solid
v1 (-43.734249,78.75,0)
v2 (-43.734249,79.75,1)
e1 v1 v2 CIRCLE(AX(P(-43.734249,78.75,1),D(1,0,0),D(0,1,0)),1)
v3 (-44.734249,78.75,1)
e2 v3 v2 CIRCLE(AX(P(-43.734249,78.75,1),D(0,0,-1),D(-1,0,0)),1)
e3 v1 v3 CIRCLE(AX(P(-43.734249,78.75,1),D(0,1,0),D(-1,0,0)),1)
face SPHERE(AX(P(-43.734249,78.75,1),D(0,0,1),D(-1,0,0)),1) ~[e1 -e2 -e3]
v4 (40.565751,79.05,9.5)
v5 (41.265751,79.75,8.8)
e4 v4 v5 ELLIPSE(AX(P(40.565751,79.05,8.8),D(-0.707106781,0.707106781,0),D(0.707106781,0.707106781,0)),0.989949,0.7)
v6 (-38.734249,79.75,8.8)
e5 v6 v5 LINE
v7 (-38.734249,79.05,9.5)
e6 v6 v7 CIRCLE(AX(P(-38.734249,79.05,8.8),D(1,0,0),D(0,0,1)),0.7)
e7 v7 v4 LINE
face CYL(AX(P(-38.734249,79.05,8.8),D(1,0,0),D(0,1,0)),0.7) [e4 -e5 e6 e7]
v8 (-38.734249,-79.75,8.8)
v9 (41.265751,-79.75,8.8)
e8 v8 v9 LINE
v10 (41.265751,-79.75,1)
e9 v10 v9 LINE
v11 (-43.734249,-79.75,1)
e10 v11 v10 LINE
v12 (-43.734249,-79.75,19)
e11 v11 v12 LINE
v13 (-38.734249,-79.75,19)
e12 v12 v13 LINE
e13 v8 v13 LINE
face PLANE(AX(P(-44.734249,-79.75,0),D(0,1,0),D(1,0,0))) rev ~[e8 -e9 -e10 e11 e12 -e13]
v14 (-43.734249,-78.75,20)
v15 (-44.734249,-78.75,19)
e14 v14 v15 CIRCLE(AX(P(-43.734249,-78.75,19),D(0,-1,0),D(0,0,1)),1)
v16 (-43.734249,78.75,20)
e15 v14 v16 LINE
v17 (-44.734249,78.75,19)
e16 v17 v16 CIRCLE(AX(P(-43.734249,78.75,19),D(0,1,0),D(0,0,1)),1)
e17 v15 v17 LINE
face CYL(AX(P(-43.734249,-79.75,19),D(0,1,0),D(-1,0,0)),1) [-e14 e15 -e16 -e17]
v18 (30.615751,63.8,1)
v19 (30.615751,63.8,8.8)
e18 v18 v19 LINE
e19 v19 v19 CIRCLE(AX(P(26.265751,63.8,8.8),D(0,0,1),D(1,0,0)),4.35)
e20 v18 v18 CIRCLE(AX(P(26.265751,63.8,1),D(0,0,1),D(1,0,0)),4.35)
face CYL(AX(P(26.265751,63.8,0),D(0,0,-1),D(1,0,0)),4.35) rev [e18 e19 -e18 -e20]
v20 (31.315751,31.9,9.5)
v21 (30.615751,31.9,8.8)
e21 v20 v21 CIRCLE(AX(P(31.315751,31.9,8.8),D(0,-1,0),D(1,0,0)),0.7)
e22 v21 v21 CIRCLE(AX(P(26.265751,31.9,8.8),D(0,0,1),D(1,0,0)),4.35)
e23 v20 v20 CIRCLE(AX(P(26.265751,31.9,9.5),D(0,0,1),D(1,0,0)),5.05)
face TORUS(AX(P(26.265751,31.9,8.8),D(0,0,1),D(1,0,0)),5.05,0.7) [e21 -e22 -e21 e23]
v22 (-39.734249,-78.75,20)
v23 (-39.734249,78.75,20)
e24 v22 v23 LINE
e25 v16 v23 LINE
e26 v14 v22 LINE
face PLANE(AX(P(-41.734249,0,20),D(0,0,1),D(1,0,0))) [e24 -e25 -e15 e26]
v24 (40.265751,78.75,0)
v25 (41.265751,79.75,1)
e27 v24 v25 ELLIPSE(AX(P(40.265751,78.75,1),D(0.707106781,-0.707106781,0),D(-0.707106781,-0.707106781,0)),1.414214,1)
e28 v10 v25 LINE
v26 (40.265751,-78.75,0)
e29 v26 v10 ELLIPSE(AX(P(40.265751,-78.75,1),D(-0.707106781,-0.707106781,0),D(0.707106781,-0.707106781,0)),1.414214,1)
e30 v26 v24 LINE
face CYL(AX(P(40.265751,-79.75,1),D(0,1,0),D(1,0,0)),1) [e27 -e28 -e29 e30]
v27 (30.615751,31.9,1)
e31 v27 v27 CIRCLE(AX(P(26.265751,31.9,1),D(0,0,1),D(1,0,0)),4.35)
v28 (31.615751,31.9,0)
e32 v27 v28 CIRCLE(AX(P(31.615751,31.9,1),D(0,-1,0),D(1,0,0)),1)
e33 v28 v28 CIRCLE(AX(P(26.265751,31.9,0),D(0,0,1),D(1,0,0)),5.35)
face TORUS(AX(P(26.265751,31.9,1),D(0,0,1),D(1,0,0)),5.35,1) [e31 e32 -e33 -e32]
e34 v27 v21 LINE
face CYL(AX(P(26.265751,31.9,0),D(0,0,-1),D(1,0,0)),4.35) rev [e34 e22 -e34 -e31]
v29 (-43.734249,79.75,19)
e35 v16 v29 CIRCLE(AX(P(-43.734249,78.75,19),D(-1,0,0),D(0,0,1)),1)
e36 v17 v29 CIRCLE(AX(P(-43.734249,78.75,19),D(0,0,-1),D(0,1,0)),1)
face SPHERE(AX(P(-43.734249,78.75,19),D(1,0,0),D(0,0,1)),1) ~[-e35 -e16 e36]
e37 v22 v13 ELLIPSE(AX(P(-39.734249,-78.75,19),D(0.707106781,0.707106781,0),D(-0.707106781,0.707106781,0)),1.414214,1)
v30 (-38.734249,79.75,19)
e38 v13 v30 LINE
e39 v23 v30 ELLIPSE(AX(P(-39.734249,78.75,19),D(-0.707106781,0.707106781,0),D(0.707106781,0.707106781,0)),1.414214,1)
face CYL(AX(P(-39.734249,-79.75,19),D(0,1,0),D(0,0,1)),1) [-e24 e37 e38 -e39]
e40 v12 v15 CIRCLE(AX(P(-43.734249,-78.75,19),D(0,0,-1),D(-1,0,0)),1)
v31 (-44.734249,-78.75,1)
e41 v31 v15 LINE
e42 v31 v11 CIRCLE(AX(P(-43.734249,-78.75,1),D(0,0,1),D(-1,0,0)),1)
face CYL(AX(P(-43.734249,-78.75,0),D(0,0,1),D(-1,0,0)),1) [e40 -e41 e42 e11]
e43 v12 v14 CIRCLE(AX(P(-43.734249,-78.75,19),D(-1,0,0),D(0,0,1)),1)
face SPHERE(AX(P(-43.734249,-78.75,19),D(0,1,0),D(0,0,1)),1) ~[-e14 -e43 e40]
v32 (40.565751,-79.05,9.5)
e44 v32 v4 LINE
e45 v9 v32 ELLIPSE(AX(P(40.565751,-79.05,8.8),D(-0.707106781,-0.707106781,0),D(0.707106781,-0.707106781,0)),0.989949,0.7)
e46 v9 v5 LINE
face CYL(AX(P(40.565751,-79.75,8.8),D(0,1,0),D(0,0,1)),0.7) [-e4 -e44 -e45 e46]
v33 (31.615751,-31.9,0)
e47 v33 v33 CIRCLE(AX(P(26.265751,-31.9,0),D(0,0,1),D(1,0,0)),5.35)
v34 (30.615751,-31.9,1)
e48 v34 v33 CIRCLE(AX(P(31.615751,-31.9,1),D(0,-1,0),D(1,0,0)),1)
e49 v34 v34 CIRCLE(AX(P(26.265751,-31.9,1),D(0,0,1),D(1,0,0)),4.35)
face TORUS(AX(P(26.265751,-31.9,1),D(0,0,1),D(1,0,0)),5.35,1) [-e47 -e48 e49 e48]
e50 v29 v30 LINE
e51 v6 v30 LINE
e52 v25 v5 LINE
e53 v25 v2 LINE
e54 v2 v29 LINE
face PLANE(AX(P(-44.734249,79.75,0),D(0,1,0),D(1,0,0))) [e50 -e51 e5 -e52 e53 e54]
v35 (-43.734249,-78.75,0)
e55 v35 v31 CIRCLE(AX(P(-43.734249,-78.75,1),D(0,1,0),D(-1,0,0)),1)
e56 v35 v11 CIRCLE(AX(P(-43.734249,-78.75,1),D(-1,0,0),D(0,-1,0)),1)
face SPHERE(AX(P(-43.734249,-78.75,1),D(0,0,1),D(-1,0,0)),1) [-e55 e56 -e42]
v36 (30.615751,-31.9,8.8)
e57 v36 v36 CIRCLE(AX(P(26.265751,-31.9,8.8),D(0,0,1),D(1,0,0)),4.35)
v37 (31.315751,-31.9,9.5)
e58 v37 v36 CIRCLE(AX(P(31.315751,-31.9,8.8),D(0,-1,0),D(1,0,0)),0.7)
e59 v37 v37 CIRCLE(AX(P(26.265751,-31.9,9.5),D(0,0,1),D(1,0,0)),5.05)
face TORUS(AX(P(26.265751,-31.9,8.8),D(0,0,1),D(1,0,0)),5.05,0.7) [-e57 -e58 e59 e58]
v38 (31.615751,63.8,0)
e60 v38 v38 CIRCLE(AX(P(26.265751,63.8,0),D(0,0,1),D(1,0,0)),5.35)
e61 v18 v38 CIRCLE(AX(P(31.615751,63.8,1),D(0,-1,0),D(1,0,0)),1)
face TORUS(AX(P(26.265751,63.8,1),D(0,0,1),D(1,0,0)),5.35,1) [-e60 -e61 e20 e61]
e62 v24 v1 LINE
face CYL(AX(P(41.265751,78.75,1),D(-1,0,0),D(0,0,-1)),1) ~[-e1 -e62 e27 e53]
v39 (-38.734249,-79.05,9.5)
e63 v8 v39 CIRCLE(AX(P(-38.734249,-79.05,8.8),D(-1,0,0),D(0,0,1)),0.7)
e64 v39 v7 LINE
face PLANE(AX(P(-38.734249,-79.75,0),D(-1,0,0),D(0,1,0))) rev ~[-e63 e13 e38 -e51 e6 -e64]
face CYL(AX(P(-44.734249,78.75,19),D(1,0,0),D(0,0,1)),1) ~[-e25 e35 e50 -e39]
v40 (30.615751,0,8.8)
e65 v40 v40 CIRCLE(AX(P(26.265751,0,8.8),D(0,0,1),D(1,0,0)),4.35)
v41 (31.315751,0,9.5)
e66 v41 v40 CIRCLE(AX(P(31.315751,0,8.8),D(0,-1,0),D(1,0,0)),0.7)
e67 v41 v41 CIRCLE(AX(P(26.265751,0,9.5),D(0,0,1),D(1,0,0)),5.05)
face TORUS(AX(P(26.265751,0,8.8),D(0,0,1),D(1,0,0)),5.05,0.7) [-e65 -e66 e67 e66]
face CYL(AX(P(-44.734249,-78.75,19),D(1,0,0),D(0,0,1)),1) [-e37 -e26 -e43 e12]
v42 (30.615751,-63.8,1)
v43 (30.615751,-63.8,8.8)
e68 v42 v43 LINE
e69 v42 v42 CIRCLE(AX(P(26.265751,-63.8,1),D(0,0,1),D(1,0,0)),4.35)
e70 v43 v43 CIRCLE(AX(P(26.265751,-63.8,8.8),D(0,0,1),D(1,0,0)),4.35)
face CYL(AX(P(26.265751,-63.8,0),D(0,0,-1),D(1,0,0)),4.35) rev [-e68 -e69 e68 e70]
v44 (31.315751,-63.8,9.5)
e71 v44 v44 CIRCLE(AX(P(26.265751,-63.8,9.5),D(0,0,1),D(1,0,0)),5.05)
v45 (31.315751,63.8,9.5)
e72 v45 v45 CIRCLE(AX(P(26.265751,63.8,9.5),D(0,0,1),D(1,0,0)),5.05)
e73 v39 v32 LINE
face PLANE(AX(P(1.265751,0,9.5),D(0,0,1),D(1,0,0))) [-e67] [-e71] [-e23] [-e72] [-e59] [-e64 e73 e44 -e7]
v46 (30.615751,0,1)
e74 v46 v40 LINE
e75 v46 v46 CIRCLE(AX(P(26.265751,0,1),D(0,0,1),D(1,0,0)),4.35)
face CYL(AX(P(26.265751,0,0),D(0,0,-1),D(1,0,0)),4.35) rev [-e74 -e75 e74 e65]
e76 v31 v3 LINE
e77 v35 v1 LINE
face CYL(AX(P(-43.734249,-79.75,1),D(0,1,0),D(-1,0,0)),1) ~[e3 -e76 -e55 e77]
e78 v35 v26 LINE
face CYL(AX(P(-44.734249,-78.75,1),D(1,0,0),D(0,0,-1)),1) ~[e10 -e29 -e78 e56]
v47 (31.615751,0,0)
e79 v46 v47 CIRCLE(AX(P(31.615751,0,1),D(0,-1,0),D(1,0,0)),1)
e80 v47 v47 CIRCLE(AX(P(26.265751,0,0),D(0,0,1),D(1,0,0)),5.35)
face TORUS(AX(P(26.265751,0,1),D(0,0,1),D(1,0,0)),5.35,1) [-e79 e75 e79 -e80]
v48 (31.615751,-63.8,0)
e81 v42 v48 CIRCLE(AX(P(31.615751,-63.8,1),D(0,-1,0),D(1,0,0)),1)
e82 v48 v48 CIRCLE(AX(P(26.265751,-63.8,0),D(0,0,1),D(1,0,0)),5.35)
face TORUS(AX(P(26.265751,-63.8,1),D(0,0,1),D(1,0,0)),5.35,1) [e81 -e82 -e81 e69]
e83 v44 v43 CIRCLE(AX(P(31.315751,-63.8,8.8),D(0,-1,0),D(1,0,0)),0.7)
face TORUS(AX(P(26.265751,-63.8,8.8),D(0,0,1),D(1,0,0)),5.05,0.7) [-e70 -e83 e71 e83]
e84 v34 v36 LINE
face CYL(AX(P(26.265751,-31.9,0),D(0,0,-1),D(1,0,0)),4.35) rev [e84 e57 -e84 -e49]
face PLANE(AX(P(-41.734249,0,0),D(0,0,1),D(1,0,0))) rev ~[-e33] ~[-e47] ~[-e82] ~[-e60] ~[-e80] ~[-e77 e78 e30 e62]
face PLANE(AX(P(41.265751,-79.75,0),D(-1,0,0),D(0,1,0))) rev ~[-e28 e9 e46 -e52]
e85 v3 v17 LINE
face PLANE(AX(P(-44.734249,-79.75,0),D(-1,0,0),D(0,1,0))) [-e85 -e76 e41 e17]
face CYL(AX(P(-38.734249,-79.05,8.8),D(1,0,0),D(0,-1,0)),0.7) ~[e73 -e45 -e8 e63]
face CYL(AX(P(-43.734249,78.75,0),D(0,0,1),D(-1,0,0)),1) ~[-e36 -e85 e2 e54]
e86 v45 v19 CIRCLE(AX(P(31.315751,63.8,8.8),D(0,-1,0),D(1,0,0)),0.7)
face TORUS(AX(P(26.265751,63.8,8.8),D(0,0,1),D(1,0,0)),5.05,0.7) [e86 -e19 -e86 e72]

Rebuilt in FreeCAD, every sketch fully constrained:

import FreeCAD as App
import Part
import Sketcher

V = App.Vector


def edges_at(feature, points):
    """Names of the edges that pass closest to the given points."""
    edges = feature.Shape.Edges
    near = lambda p: min(range(len(edges)), key=lambda i: edges[i].distToShape(Part.Vertex(*p))[0])
    return sorted({f"Edge{near(p) + 1}" for p in points})


def add_polygon(sketch, points):
    """Adds a closed chain of lines whose ends are joined by coincident constraints."""
    first, n = sketch.GeometryCount, len(points)
    for a, b in zip(points, points[1:] + points[:1]):
        sketch.addGeometry(Part.LineSegment(App.Vector(*a, 0), App.Vector(*b, 0)), False)
    for i in range(n):
        sketch.addConstraint(Sketcher.Constraint("Coincident", first + i, 2, first + (i + 1) % n, 1))

doc = App.newDocument("Part")
body = doc.addObject("PartDesign::Body", "Body")

sketch1 = doc.addObject("Sketcher::SketchObject", "Sketch")
body.addObject(sketch1)
sketch1.AttachmentSupport = (doc.XY_Plane, [""])
sketch1.MapMode = "FlatFace"
add_polygon(sketch1, [(-38.7, 79.8), (-38.7, -79.8), (41.3, -79.8), (41.3, 79.8)])
sketch1.addGeometry(Part.Circle(V(26.3, -63.8, 0), V(0, 0, 1), 4.3), False)
sketch1.addGeometry(Part.Circle(V(26.3, -31.9, 0), V(0, 0, 1), 4.3), False)
sketch1.addGeometry(Part.Circle(V(26.3, 0, 0), V(0, 0, 1), 4.3), False)
sketch1.addGeometry(Part.Circle(V(26.3, 31.9, 0), V(0, 0, 1), 4.3), False)
sketch1.addGeometry(Part.Circle(V(26.3, 63.8, 0), V(0, 0, 1), 4.3), False)
sketch1.addConstraint(Sketcher.Constraint("Vertical", 0))
sketch1.addConstraint(Sketcher.Constraint("Horizontal", 1))
sketch1.addConstraint(Sketcher.Constraint("Vertical", 2))
sketch1.addConstraint(Sketcher.Constraint("Horizontal", 3))
sketch1.addConstraint(Sketcher.Constraint("Equal", 4, 5))
sketch1.addConstraint(Sketcher.Constraint("Equal", 5, 6))
sketch1.addConstraint(Sketcher.Constraint("Equal", 6, 7))
sketch1.addConstraint(Sketcher.Constraint("Equal", 7, 8))
sketch1.addConstraint(Sketcher.Constraint("Symmetric", 5, 3, 7, 3, -1))
sketch1.addConstraint(Sketcher.Constraint("Symmetric", 4, 3, 8, 3, -1))
sketch1.addConstraint(Sketcher.Constraint("PointOnObject", 6, 3, -1))
sketch1.addConstraint(Sketcher.Constraint("Vertical", 4, 3, 5, 3))
sketch1.addConstraint(Sketcher.Constraint("Vertical", 5, 3, 6, 3))
sketch1.addConstraint(Sketcher.Constraint("Diameter", 4, 8.7))
sketch1.addConstraint(Sketcher.Constraint("DistanceX", 1, 1, 1, 2, 80.0))
sketch1.addConstraint(Sketcher.Constraint("DistanceY", 0, 2, 0, 1, 159.5))
sketch1.addConstraint(Sketcher.Constraint("DistanceX", 0, 2, 4, 3, 65.0))
sketch1.addConstraint(Sketcher.Constraint("DistanceY", 4, 3, -1, 1, 63.8))
sketch1.addConstraint(Sketcher.Constraint("DistanceY", 5, 3, -1, 1, 31.9))
sketch1.addConstraint(Sketcher.Constraint("DistanceY", 0, 2, -1, 1, 79.75))
sketch1.addConstraint(Sketcher.Constraint("DistanceX", -1, 1, 4, 3, 26.265751))
pad1 = doc.addObject("PartDesign::Pad", "Pad")
body.addObject(pad1)
pad1.Profile = sketch1
pad1.Length = 9.5

sketch2 = doc.addObject("Sketcher::SketchObject", "Sketch001")
body.addObject(sketch2)
sketch2.AttachmentSupport = (doc.XY_Plane, [""])
sketch2.MapMode = "FlatFace"
add_polygon(sketch2, [(-45, 80), (-45, -80), (-39, -80), (-39, 80)])
sketch2.addConstraint(Sketcher.Constraint("Vertical", 0))
sketch2.addConstraint(Sketcher.Constraint("Horizontal", 1))
sketch2.addConstraint(Sketcher.Constraint("Vertical", 2))
sketch2.addConstraint(Sketcher.Constraint("Horizontal", 3))
sketch2.addConstraint(Sketcher.Constraint("DistanceX", 1, 1, 1, 2, 6.0))
sketch2.addConstraint(Sketcher.Constraint("DistanceY", 0, 2, 0, 1, 159.5))
sketch2.addConstraint(Sketcher.Constraint("DistanceY", 0, 2, -1, 1, 79.75))
sketch2.addConstraint(Sketcher.Constraint("DistanceX", 0, 2, -1, 1, 44.734249))
pad2 = doc.addObject("PartDesign::Pad", "Pad001")
body.addObject(pad2)
pad2.Profile = sketch2
pad2.Length = 20
doc.recompute()

fillet = doc.addObject("PartDesign::Fillet", "Fillet")
body.addObject(fillet)
fillet.Base = (pad2, edges_at(pad2, [
    (-38.734, 0, 20),
    (-41.734, 79.75, 20),
    (-44.734, 0, 20),
    (-41.734, -79.75, 20),
    (-44.734, 79.75, 10),
    (-44.734, -79.75, 10),
    (-44.734, 0, 0),
    (-1.734, 79.75, 0),
    (-1.734, -79.75, 0),
    (41.266, 0, 0),
    (21.916, -63.8, 0),
    (21.916, -31.9, 0),
    (21.916, 0, 0),
    (21.916, 31.9, 0),
    (21.916, 63.8, 0),
]))
fillet.Radius = 1
doc.recompute()

fillet2 = doc.addObject("PartDesign::Fillet", "Fillet001")
body.addObject(fillet2)
fillet2.Base = (fillet, edges_at(fillet, [
    (1.266, -79.75, 9.5),
    (41.266, 0, 9.5),
    (1.266, 79.75, 9.5),
    (21.916, 63.8, 9.5),
    (21.916, 31.9, 9.5),
    (21.916, 0, 9.5),
    (21.916, -31.9, 9.5),
    (21.916, -63.8, 9.5),
]))
fillet2.Radius = 0.7

doc.recompute()
